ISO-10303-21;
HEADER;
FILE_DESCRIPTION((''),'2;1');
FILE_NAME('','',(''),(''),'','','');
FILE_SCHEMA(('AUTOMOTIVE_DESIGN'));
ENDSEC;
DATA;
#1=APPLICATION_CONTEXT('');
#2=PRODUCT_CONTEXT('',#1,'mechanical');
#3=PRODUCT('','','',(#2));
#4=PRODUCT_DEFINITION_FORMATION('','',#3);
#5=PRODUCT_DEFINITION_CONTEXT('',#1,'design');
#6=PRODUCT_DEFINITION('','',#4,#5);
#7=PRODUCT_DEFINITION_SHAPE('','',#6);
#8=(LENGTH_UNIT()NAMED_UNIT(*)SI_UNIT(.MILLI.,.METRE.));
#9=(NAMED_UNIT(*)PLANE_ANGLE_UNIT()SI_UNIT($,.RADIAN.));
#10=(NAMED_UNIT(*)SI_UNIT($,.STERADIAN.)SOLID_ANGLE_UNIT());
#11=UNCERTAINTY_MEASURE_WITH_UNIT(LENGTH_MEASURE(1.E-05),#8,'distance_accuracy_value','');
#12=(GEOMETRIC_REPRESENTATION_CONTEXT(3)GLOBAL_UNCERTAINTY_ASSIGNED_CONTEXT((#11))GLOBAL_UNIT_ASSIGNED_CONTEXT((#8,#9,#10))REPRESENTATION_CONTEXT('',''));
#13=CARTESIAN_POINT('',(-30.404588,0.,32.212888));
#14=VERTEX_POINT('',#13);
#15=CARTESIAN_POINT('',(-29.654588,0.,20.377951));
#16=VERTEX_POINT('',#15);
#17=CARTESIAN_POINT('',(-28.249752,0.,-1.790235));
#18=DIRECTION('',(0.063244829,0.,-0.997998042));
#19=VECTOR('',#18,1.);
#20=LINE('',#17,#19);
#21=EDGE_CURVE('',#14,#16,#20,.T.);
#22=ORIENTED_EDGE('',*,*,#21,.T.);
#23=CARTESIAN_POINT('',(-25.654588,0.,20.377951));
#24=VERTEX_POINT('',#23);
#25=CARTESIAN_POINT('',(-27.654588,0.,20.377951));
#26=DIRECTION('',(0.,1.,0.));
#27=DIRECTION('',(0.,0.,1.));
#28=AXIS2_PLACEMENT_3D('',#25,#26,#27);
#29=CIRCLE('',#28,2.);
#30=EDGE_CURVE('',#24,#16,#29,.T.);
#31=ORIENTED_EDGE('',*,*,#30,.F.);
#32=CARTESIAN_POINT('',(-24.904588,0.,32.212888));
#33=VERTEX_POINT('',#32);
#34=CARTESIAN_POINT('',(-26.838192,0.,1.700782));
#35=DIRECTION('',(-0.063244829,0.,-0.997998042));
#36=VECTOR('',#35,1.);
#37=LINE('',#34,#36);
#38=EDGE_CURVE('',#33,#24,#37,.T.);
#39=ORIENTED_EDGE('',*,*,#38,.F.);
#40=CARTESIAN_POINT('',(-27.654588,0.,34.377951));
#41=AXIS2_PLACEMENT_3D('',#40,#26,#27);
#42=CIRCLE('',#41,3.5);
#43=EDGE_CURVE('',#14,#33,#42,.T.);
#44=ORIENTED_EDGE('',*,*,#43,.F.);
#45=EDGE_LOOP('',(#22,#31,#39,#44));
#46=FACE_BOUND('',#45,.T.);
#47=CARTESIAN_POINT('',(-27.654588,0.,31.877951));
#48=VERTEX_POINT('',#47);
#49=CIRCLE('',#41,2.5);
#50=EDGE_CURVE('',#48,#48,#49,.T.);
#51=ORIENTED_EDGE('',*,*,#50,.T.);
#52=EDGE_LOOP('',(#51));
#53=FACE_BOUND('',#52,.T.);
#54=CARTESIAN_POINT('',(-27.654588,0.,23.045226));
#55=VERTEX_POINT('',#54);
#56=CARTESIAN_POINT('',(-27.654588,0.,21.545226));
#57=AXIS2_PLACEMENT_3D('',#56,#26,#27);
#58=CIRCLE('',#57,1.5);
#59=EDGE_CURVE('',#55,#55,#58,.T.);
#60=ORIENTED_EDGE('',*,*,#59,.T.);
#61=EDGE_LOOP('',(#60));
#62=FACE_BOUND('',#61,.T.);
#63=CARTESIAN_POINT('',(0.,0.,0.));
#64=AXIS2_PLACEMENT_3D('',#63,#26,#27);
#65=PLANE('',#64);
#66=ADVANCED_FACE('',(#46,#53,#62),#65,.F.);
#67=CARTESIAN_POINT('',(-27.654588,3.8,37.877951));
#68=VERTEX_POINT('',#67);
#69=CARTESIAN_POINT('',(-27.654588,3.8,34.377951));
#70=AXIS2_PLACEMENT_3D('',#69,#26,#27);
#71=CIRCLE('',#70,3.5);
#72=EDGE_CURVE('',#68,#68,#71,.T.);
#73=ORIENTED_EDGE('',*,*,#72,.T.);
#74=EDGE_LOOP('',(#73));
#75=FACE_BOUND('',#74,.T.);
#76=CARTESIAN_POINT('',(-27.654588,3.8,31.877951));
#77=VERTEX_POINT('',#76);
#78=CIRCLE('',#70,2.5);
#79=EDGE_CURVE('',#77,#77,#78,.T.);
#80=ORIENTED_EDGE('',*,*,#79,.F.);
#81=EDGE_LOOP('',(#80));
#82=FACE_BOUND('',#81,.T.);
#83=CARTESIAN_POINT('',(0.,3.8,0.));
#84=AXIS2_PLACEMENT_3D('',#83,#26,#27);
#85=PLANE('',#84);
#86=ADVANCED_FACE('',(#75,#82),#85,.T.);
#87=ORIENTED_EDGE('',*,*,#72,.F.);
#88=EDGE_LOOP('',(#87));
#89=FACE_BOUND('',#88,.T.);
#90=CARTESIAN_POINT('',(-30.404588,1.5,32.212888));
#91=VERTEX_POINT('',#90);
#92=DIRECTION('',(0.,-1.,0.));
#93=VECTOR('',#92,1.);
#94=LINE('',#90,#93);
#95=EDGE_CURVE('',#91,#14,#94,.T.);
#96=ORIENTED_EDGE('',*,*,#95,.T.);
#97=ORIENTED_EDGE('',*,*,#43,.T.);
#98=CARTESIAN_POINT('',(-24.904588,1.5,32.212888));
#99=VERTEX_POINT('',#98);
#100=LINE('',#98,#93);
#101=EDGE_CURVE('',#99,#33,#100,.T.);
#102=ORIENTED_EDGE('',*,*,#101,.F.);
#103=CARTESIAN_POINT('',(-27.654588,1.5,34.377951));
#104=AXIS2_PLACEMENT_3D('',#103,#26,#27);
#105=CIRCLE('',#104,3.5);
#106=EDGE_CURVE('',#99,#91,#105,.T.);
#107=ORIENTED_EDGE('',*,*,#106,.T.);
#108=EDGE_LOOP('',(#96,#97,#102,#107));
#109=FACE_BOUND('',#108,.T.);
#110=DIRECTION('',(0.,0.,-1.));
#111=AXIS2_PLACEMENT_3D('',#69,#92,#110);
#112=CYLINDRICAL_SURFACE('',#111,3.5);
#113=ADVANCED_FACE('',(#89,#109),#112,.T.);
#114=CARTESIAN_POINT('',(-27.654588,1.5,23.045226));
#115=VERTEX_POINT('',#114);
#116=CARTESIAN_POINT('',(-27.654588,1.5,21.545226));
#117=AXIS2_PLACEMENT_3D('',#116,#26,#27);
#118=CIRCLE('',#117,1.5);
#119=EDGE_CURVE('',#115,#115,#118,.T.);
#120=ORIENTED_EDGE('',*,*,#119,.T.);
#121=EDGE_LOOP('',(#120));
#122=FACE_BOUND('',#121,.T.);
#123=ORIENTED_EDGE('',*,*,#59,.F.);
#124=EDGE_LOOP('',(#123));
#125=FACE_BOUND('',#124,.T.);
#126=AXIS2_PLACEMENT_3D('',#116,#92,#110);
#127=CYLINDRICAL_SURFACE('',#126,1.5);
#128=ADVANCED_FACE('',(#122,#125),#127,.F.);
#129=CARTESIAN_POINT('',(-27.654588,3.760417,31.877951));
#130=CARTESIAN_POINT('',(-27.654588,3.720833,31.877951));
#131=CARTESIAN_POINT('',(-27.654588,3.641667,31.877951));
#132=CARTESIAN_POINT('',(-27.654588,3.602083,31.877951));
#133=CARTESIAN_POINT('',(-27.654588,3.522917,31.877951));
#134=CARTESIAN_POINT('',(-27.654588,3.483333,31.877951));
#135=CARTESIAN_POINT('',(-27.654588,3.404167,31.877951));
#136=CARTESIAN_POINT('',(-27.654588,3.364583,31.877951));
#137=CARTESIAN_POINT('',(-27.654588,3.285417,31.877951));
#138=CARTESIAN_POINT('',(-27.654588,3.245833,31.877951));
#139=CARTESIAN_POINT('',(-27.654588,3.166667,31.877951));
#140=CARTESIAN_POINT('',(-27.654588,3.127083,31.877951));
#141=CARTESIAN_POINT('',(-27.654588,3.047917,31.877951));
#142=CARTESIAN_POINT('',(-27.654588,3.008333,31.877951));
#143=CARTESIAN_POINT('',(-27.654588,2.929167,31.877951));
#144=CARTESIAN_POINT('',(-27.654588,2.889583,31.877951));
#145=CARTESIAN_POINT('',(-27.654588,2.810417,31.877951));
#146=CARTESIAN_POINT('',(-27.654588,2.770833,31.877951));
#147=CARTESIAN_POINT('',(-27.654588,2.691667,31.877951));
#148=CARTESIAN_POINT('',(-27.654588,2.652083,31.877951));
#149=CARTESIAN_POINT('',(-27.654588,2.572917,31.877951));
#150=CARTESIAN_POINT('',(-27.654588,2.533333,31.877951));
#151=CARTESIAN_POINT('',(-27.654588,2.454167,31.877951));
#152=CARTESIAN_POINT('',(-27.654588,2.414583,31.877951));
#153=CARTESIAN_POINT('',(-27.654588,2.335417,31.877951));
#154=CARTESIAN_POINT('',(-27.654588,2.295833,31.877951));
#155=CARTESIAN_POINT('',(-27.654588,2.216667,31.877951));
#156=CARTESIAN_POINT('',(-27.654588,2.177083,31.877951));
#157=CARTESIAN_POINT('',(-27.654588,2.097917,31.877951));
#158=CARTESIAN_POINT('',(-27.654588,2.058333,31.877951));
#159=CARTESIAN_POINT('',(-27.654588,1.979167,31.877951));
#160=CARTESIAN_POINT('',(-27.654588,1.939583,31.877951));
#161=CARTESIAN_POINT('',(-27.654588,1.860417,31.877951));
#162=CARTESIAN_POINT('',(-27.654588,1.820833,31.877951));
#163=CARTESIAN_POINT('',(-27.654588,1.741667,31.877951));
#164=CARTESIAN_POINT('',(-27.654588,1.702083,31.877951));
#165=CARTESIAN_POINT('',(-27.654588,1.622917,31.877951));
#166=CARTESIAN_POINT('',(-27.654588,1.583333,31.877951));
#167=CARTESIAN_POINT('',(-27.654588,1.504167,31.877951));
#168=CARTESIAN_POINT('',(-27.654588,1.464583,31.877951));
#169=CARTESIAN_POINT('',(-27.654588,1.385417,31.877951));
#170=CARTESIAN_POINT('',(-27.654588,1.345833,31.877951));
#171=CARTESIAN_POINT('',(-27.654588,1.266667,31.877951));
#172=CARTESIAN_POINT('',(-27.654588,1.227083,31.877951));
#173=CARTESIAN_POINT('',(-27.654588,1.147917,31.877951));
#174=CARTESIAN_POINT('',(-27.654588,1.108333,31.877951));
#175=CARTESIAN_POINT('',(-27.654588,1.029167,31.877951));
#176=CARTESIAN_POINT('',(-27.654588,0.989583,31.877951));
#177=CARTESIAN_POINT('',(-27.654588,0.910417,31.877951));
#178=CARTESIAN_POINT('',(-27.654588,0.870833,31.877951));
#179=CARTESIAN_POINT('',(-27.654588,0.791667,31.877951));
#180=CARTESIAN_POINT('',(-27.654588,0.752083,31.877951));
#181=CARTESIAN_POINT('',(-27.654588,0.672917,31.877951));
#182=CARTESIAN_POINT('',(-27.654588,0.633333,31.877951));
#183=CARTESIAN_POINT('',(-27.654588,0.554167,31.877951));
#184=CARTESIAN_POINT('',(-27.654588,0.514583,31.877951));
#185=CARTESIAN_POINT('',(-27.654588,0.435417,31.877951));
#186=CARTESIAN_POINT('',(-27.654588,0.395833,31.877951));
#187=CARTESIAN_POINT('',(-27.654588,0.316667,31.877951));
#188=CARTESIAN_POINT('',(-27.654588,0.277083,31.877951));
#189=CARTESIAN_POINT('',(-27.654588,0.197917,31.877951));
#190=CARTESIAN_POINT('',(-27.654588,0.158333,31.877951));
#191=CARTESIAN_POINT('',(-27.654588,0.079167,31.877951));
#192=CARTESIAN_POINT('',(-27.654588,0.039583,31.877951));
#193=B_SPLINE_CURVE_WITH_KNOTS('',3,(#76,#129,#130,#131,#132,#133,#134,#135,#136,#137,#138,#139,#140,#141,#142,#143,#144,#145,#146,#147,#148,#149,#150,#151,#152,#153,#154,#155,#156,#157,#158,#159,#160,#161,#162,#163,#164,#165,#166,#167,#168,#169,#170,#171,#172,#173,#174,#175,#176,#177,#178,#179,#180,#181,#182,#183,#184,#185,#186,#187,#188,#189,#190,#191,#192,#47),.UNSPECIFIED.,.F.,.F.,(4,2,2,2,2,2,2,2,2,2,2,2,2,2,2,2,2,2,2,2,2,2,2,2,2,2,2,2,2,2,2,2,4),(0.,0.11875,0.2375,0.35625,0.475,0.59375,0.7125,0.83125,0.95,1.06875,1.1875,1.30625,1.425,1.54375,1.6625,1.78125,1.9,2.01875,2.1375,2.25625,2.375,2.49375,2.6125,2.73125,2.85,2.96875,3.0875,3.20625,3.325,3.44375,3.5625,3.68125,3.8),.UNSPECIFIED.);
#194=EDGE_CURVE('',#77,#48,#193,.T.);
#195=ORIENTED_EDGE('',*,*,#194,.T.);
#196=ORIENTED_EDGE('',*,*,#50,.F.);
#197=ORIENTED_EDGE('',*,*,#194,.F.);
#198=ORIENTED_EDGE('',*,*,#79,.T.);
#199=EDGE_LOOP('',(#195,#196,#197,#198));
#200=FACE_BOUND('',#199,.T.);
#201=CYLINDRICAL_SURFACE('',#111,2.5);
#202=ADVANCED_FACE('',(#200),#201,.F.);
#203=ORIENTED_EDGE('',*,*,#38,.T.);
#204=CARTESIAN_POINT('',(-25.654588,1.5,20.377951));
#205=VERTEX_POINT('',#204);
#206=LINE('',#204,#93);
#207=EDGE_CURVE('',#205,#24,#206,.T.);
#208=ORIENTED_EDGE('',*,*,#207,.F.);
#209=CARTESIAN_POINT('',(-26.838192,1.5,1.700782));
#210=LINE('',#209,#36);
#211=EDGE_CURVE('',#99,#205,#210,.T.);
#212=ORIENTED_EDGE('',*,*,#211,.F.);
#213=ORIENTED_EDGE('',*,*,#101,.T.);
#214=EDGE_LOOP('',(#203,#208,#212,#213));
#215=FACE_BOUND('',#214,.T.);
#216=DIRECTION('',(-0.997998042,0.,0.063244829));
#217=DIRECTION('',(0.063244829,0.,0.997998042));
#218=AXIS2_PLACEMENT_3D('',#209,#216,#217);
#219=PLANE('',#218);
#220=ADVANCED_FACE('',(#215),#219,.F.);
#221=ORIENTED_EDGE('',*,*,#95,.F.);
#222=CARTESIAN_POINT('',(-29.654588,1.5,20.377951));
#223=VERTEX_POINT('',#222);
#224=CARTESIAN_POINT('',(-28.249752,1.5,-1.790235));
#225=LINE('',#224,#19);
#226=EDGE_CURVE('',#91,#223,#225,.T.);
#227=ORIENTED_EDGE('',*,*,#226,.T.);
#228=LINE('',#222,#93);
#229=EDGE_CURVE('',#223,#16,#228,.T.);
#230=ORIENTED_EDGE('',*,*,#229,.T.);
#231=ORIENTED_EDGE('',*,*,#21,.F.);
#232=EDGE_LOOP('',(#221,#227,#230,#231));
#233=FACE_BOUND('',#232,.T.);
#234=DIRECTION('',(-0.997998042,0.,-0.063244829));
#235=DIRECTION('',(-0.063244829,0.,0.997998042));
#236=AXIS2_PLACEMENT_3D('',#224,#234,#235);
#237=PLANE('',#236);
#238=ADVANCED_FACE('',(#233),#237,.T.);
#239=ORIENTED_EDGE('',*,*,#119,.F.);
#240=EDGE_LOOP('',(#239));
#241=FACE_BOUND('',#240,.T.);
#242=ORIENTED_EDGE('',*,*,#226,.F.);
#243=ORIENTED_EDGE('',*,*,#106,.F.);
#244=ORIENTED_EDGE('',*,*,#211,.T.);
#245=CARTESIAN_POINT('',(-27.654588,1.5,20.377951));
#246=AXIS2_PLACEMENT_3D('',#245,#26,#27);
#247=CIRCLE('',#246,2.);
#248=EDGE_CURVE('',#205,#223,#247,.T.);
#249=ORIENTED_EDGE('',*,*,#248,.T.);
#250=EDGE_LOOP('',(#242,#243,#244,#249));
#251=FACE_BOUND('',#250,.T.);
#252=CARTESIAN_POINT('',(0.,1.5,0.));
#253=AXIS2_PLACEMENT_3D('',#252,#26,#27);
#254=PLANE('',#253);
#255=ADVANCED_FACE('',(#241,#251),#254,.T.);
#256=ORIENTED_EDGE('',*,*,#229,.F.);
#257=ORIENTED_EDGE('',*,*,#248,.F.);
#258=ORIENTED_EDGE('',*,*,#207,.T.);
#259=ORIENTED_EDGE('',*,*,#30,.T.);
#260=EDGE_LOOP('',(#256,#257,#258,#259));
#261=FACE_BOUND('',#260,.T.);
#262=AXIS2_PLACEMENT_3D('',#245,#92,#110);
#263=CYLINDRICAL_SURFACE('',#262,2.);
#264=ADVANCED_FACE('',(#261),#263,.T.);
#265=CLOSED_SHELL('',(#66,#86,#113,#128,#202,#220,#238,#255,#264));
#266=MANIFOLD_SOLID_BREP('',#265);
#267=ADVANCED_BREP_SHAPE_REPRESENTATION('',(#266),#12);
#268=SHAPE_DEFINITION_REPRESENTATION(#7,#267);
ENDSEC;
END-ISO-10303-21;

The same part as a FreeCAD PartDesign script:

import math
import FreeCAD as App
import Part
import Sketcher

V = App.Vector

doc = App.newDocument("Part")
body = doc.addObject("PartDesign::Body", "Body")

sketch1 = body.newObject("Sketcher::SketchObject", "Sketch")
sketch1.AttachmentSupport = (doc.getObject("XZ_Plane"), [""])
sketch1.MapMode = "FlatFace"
sketch1.addGeometry([
    Part.LineSegment(V(-29.7, 20.4, 0), V(-30.4, 32.2, 0)),
    Part.ArcOfCircle(Part.Circle(V(-27.7, 34.4, 0), V(0, 0, 1), 3.5), math.radians(-142), math.radians(-38)),
    Part.LineSegment(V(-24.9, 32.2, 0), V(-25.7, 20.4, 0)),
    Part.ArcOfCircle(Part.Circle(V(-27.7, 20.4, 0), V(0, 0, 1), 2), math.radians(180), math.radians(360)),
    Part.Circle(V(-27.7, 21.5, 0), V(0, 0, 1), 1.5),
], False)
sketch1.addConstraint([
    Sketcher.Constraint("Coincident", 0, 2, 1, 1),
    Sketcher.Constraint("Coincident", 1, 2, 2, 1),
    Sketcher.Constraint("Coincident", 2, 2, 3, 2),
    Sketcher.Constraint("Coincident", 3, 1, 0, 1),
    Sketcher.Constraint("Horizontal", 0, 2, 1, 2),
    Sketcher.Constraint("Horizontal", 3, 3, 2, 2),
    Sketcher.Constraint("Horizontal", 2, 2, 3, 1),
    Sketcher.Constraint("Vertical", 1, 3, 3, 3),
    Sketcher.Constraint("Vertical", 3, 3, 4, 3),
    Sketcher.Constraint("Diameter", 4, 3.0),
    Sketcher.Constraint("Radius", 3, 2.0),
    Sketcher.Constraint("Radius", 1, 3.5),
    Sketcher.Constraint("DistanceY", 3, 3, 1, 3, 14.0),
    Sketcher.Constraint("DistanceX", 0, 2, 1, 2, 5.5),
    Sketcher.Constraint("DistanceX", 1, 3, -1, 1, 27.654588),
    Sketcher.Constraint("DistanceY", -1, 1, 1, 3, 34.377951),
    Sketcher.Constraint("DistanceY", 4, 3, 0, 2, 10.667662),
])
pad1 = body.newObject("PartDesign::Pad", "Pad")
pad1.Profile = sketch1
pad1.Length = 1.5
pad1.Reversed = True

sketch2 = body.newObject("Sketcher::SketchObject", "Sketch001")
sketch2.AttachmentSupport = (doc.getObject("XZ_Plane"), [""])
sketch2.MapMode = "FlatFace"
sketch2.addGeometry([
    Part.Circle(V(-27.7, 34.4, 0), V(0, 0, 1), 3.5),
    Part.Circle(V(-27.7, 34.4, 0), V(0, 0, 1), 2.5),
], False)
sketch2.addConstraint([
    Sketcher.Constraint("Coincident", 1, 3, 0, 3),
    Sketcher.Constraint("Diameter", 0, 7.0),
    Sketcher.Constraint("Diameter", 1, 5.0),
    Sketcher.Constraint("DistanceX", 0, 3, -1, 1, 27.654588),
    Sketcher.Constraint("DistanceY", -1, 1, 0, 3, 34.377951),
])
pad2 = body.newObject("PartDesign::Pad", "Pad001")
pad2.Profile = sketch2
pad2.Length = 3.8
pad2.Reversed = True

doc.recompute()
